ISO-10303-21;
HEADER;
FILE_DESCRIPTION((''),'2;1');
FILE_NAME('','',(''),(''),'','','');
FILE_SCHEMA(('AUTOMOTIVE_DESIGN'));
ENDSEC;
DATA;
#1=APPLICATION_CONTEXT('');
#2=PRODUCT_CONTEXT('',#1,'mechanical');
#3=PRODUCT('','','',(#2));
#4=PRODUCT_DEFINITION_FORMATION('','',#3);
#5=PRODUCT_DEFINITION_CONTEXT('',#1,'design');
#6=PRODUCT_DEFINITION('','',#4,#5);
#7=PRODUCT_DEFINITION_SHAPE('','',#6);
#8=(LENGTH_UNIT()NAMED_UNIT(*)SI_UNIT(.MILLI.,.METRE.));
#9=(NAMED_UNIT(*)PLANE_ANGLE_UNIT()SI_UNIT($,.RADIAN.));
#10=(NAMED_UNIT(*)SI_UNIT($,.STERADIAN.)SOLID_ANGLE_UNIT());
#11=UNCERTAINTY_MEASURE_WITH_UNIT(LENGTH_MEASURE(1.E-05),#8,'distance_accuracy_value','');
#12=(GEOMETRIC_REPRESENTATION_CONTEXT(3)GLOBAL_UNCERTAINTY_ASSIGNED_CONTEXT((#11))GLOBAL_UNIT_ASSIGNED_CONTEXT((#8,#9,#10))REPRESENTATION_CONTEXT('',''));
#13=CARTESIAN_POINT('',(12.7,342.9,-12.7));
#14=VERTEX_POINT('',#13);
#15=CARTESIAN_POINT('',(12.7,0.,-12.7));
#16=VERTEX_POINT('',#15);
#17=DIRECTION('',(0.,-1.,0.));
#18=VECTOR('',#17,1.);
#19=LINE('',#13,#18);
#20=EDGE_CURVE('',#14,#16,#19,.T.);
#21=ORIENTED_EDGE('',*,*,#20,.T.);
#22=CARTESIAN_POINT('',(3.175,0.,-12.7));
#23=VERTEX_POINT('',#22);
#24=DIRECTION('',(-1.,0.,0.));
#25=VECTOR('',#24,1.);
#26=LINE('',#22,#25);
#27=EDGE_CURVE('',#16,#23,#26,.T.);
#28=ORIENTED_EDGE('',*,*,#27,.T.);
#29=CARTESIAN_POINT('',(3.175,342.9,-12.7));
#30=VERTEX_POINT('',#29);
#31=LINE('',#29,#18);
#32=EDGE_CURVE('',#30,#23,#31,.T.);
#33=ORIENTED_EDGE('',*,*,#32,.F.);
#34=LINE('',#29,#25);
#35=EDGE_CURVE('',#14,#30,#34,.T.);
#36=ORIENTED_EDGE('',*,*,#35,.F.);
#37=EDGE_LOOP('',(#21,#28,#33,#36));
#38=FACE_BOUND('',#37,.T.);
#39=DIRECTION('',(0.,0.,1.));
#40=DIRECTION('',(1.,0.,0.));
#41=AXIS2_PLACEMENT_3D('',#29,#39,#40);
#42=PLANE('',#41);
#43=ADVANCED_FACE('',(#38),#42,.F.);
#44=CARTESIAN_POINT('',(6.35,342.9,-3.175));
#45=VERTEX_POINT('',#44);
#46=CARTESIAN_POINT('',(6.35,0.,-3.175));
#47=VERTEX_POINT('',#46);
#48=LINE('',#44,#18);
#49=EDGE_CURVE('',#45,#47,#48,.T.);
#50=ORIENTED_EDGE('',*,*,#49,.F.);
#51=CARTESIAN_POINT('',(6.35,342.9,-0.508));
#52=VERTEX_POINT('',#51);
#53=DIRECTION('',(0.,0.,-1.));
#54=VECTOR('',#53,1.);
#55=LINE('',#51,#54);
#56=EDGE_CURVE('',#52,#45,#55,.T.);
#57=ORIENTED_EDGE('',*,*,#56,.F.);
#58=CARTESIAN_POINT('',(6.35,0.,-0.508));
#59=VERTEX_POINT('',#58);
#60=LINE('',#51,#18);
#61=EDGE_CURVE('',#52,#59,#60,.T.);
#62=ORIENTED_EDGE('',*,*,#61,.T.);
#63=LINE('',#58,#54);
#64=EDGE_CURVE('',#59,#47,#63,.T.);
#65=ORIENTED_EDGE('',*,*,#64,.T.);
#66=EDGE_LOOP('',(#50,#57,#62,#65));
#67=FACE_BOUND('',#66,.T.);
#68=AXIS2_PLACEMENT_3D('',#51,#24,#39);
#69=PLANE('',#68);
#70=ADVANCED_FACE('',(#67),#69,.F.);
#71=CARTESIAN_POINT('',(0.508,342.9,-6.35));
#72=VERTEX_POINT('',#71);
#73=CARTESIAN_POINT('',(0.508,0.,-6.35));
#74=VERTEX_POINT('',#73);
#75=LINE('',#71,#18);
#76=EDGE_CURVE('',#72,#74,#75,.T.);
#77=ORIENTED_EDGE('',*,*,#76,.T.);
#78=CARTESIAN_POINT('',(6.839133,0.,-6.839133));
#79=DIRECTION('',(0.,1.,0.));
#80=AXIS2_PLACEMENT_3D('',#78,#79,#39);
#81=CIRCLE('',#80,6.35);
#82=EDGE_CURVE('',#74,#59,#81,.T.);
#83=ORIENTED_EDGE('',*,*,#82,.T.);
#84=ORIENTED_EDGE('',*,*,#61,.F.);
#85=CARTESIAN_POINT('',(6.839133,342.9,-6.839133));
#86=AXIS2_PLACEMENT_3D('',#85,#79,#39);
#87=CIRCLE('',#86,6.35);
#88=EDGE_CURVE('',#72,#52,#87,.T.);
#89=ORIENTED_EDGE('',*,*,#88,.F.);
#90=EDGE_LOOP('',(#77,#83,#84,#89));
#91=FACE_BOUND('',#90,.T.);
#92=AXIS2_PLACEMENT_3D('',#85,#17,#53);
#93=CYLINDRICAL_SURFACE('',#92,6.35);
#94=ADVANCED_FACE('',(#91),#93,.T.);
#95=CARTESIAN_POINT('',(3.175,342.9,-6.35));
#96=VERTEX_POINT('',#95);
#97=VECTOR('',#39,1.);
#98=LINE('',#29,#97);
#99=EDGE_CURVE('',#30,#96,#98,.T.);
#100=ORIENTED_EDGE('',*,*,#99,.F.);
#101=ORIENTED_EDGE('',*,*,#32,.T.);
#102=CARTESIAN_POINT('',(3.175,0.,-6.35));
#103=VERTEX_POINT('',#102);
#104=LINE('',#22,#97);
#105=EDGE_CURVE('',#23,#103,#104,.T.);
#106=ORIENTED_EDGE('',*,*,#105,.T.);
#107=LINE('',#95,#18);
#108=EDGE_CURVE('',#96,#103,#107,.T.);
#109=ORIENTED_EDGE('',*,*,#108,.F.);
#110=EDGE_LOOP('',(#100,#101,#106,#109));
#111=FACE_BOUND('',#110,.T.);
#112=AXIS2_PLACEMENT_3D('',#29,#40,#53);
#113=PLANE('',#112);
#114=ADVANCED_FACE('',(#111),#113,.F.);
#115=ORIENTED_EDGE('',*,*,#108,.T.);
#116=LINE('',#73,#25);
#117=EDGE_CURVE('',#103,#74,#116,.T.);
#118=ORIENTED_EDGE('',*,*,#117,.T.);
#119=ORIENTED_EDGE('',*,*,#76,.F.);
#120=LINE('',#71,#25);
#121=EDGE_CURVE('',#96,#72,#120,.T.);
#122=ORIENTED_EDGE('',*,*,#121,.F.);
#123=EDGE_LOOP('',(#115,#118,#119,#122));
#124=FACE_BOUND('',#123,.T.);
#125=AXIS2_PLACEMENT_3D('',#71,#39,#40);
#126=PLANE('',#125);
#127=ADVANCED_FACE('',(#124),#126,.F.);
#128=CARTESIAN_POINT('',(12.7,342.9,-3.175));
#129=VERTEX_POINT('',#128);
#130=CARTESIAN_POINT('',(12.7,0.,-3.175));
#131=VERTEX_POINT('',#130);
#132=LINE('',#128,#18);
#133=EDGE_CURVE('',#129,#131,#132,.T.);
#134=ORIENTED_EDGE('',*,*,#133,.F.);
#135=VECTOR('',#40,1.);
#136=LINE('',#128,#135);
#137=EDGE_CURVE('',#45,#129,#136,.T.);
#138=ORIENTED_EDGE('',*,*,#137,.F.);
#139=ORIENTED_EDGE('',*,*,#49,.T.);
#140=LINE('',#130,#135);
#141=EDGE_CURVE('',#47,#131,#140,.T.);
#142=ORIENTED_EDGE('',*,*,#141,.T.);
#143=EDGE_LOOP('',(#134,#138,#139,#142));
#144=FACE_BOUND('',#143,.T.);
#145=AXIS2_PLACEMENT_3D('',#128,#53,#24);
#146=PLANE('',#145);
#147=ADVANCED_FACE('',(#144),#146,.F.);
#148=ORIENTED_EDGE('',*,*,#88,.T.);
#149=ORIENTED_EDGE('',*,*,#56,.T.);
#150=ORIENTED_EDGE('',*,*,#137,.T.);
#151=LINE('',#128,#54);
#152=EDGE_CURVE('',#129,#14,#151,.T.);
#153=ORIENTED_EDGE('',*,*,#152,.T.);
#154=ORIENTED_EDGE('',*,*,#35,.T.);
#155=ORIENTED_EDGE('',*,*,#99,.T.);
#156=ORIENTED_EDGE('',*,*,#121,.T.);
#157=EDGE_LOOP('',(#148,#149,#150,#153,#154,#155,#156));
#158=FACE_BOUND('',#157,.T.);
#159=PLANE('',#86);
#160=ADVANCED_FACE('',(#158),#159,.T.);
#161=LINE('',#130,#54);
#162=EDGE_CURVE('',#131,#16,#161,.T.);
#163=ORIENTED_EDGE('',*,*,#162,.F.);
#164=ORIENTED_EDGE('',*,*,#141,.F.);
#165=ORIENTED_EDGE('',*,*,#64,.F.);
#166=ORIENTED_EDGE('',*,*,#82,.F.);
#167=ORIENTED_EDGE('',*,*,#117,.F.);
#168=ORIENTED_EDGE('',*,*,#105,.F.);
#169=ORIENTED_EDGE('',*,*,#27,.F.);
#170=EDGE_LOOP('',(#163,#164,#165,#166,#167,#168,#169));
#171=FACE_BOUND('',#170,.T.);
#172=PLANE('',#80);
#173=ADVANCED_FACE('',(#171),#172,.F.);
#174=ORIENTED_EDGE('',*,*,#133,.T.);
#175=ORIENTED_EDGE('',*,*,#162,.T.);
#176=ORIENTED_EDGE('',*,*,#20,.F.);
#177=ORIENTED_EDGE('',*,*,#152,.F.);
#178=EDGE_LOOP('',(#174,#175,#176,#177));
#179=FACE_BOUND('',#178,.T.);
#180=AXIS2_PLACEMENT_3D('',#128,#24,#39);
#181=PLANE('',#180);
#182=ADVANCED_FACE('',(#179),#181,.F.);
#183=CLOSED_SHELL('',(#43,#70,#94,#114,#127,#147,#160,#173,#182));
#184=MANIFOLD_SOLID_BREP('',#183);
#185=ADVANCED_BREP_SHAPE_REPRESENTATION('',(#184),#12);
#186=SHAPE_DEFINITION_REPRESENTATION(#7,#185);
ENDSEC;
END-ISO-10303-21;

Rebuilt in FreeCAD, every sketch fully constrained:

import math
import FreeCAD as App
import Part
import Sketcher

V = App.Vector
Q = App.Units.Quantity

doc = App.newDocument("Part")
params = doc.addObject("Spreadsheet::Sheet", "Params")
for row, (alias, value) in enumerate([
    ("sketch1_radius", "0.25 in"),
    ("sketch1_width", "0.25 in"),
    ("sketch1_width2", "0.375 in"),
    ("sketch1_width3", "0.105 in"),
    ("pad1_length", "13.5 in"),
], start=1):
    params.set(f"A{row}", alias)
    params.set(f"B{row}", "=" + value)
    params.setAlias(f"B{row}", alias)

body = doc.addObject("PartDesign::Body", "Body")

# Sketch on XZ plane
sketch1 = body.newObject("Sketcher::SketchObject", "Sketch")
sketch1.AttachmentSupport = (doc.getObject("XZ_Plane"), [""])
sketch1.MapMode = "FlatFace"
sketch1.addGeometry([
    Part.LineSegment(V(12.7, -12.7, 0), V(3.175, -12.7, 0)),  # 0
    Part.LineSegment(V(3.175, -12.7, 0), V(3.175, -6.35, 0)),  # 1
    Part.LineSegment(V(3.175, -6.35, 0), V(0.508, -6.35, 0)),  # 2
    Part.ArcOfCircle(Part.Circle(V(6.839133, -6.839133, 0), V(0, 0, 1), 6.35), math.radians(94.417805), math.radians(175.582195)),  # 3
    Part.LineSegment(V(6.35, -0.508, 0), V(6.35, -3.175, 0)),  # 4
    Part.LineSegment(V(6.35, -3.175, 0), V(12.7, -3.175, 0)),  # 5
    Part.LineSegment(V(12.7, -3.175, 0), V(12.7, -12.7, 0)),  # 6
], False)
sketch1.addConstraint([
    Sketcher.Constraint("Coincident", 0, 2, 1, 1),
    Sketcher.Constraint("Coincident", 1, 2, 2, 1),
    Sketcher.Constraint("Coincident", 2, 2, 3, 2),
    Sketcher.Constraint("Coincident", 3, 1, 4, 1),
    Sketcher.Constraint("Coincident", 4, 2, 5, 1),
    Sketcher.Constraint("Coincident", 5, 2, 6, 1),
    Sketcher.Constraint("Coincident", 6, 2, 0, 1),
    Sketcher.Constraint("Horizontal", 0),
    Sketcher.Constraint("Vertical", 1),
    Sketcher.Constraint("Horizontal", 2),
    Sketcher.Constraint("Vertical", 4),
    Sketcher.Constraint("Horizontal", 5),
    Sketcher.Constraint("Vertical", 6),
    Sketcher.Constraint("Equal", 5, 1),
    Sketcher.Constraint("Equal", 2, 4),
    Sketcher.Constraint("Equal", 0, 6),
    Sketcher.Constraint("Radius", 3, Q("0.25 in")),
    Sketcher.Constraint("DistanceX", 5, 1, 5, 2, Q("0.25 in")),
    Sketcher.Constraint("DistanceY", 0, 2, -1, 1, Q("0.5 in")),
    Sketcher.Constraint("DistanceX", -1, 1, 5, 2, Q("0.5 in")),
    Sketcher.Constraint("DistanceX", 0, 2, 0, 1, Q("0.375 in")),
    Sketcher.Constraint("DistanceX", 2, 2, 2, 1, Q("0.105 in")),
])
sketch1.setExpression("Constraints[16]", "Params.sketch1_radius")
sketch1.setExpression("Constraints[17]", "Params.sketch1_width")
sketch1.setExpression("Constraints[20]", "Params.sketch1_width2")
sketch1.setExpression("Constraints[21]", "Params.sketch1_width3")
pad1 = body.newObject("PartDesign::Pad", "Pad")
pad1.Profile = sketch1
pad1.setExpression("Length", "Params.pad1_length")
pad1.Reversed = True

doc.recompute()
